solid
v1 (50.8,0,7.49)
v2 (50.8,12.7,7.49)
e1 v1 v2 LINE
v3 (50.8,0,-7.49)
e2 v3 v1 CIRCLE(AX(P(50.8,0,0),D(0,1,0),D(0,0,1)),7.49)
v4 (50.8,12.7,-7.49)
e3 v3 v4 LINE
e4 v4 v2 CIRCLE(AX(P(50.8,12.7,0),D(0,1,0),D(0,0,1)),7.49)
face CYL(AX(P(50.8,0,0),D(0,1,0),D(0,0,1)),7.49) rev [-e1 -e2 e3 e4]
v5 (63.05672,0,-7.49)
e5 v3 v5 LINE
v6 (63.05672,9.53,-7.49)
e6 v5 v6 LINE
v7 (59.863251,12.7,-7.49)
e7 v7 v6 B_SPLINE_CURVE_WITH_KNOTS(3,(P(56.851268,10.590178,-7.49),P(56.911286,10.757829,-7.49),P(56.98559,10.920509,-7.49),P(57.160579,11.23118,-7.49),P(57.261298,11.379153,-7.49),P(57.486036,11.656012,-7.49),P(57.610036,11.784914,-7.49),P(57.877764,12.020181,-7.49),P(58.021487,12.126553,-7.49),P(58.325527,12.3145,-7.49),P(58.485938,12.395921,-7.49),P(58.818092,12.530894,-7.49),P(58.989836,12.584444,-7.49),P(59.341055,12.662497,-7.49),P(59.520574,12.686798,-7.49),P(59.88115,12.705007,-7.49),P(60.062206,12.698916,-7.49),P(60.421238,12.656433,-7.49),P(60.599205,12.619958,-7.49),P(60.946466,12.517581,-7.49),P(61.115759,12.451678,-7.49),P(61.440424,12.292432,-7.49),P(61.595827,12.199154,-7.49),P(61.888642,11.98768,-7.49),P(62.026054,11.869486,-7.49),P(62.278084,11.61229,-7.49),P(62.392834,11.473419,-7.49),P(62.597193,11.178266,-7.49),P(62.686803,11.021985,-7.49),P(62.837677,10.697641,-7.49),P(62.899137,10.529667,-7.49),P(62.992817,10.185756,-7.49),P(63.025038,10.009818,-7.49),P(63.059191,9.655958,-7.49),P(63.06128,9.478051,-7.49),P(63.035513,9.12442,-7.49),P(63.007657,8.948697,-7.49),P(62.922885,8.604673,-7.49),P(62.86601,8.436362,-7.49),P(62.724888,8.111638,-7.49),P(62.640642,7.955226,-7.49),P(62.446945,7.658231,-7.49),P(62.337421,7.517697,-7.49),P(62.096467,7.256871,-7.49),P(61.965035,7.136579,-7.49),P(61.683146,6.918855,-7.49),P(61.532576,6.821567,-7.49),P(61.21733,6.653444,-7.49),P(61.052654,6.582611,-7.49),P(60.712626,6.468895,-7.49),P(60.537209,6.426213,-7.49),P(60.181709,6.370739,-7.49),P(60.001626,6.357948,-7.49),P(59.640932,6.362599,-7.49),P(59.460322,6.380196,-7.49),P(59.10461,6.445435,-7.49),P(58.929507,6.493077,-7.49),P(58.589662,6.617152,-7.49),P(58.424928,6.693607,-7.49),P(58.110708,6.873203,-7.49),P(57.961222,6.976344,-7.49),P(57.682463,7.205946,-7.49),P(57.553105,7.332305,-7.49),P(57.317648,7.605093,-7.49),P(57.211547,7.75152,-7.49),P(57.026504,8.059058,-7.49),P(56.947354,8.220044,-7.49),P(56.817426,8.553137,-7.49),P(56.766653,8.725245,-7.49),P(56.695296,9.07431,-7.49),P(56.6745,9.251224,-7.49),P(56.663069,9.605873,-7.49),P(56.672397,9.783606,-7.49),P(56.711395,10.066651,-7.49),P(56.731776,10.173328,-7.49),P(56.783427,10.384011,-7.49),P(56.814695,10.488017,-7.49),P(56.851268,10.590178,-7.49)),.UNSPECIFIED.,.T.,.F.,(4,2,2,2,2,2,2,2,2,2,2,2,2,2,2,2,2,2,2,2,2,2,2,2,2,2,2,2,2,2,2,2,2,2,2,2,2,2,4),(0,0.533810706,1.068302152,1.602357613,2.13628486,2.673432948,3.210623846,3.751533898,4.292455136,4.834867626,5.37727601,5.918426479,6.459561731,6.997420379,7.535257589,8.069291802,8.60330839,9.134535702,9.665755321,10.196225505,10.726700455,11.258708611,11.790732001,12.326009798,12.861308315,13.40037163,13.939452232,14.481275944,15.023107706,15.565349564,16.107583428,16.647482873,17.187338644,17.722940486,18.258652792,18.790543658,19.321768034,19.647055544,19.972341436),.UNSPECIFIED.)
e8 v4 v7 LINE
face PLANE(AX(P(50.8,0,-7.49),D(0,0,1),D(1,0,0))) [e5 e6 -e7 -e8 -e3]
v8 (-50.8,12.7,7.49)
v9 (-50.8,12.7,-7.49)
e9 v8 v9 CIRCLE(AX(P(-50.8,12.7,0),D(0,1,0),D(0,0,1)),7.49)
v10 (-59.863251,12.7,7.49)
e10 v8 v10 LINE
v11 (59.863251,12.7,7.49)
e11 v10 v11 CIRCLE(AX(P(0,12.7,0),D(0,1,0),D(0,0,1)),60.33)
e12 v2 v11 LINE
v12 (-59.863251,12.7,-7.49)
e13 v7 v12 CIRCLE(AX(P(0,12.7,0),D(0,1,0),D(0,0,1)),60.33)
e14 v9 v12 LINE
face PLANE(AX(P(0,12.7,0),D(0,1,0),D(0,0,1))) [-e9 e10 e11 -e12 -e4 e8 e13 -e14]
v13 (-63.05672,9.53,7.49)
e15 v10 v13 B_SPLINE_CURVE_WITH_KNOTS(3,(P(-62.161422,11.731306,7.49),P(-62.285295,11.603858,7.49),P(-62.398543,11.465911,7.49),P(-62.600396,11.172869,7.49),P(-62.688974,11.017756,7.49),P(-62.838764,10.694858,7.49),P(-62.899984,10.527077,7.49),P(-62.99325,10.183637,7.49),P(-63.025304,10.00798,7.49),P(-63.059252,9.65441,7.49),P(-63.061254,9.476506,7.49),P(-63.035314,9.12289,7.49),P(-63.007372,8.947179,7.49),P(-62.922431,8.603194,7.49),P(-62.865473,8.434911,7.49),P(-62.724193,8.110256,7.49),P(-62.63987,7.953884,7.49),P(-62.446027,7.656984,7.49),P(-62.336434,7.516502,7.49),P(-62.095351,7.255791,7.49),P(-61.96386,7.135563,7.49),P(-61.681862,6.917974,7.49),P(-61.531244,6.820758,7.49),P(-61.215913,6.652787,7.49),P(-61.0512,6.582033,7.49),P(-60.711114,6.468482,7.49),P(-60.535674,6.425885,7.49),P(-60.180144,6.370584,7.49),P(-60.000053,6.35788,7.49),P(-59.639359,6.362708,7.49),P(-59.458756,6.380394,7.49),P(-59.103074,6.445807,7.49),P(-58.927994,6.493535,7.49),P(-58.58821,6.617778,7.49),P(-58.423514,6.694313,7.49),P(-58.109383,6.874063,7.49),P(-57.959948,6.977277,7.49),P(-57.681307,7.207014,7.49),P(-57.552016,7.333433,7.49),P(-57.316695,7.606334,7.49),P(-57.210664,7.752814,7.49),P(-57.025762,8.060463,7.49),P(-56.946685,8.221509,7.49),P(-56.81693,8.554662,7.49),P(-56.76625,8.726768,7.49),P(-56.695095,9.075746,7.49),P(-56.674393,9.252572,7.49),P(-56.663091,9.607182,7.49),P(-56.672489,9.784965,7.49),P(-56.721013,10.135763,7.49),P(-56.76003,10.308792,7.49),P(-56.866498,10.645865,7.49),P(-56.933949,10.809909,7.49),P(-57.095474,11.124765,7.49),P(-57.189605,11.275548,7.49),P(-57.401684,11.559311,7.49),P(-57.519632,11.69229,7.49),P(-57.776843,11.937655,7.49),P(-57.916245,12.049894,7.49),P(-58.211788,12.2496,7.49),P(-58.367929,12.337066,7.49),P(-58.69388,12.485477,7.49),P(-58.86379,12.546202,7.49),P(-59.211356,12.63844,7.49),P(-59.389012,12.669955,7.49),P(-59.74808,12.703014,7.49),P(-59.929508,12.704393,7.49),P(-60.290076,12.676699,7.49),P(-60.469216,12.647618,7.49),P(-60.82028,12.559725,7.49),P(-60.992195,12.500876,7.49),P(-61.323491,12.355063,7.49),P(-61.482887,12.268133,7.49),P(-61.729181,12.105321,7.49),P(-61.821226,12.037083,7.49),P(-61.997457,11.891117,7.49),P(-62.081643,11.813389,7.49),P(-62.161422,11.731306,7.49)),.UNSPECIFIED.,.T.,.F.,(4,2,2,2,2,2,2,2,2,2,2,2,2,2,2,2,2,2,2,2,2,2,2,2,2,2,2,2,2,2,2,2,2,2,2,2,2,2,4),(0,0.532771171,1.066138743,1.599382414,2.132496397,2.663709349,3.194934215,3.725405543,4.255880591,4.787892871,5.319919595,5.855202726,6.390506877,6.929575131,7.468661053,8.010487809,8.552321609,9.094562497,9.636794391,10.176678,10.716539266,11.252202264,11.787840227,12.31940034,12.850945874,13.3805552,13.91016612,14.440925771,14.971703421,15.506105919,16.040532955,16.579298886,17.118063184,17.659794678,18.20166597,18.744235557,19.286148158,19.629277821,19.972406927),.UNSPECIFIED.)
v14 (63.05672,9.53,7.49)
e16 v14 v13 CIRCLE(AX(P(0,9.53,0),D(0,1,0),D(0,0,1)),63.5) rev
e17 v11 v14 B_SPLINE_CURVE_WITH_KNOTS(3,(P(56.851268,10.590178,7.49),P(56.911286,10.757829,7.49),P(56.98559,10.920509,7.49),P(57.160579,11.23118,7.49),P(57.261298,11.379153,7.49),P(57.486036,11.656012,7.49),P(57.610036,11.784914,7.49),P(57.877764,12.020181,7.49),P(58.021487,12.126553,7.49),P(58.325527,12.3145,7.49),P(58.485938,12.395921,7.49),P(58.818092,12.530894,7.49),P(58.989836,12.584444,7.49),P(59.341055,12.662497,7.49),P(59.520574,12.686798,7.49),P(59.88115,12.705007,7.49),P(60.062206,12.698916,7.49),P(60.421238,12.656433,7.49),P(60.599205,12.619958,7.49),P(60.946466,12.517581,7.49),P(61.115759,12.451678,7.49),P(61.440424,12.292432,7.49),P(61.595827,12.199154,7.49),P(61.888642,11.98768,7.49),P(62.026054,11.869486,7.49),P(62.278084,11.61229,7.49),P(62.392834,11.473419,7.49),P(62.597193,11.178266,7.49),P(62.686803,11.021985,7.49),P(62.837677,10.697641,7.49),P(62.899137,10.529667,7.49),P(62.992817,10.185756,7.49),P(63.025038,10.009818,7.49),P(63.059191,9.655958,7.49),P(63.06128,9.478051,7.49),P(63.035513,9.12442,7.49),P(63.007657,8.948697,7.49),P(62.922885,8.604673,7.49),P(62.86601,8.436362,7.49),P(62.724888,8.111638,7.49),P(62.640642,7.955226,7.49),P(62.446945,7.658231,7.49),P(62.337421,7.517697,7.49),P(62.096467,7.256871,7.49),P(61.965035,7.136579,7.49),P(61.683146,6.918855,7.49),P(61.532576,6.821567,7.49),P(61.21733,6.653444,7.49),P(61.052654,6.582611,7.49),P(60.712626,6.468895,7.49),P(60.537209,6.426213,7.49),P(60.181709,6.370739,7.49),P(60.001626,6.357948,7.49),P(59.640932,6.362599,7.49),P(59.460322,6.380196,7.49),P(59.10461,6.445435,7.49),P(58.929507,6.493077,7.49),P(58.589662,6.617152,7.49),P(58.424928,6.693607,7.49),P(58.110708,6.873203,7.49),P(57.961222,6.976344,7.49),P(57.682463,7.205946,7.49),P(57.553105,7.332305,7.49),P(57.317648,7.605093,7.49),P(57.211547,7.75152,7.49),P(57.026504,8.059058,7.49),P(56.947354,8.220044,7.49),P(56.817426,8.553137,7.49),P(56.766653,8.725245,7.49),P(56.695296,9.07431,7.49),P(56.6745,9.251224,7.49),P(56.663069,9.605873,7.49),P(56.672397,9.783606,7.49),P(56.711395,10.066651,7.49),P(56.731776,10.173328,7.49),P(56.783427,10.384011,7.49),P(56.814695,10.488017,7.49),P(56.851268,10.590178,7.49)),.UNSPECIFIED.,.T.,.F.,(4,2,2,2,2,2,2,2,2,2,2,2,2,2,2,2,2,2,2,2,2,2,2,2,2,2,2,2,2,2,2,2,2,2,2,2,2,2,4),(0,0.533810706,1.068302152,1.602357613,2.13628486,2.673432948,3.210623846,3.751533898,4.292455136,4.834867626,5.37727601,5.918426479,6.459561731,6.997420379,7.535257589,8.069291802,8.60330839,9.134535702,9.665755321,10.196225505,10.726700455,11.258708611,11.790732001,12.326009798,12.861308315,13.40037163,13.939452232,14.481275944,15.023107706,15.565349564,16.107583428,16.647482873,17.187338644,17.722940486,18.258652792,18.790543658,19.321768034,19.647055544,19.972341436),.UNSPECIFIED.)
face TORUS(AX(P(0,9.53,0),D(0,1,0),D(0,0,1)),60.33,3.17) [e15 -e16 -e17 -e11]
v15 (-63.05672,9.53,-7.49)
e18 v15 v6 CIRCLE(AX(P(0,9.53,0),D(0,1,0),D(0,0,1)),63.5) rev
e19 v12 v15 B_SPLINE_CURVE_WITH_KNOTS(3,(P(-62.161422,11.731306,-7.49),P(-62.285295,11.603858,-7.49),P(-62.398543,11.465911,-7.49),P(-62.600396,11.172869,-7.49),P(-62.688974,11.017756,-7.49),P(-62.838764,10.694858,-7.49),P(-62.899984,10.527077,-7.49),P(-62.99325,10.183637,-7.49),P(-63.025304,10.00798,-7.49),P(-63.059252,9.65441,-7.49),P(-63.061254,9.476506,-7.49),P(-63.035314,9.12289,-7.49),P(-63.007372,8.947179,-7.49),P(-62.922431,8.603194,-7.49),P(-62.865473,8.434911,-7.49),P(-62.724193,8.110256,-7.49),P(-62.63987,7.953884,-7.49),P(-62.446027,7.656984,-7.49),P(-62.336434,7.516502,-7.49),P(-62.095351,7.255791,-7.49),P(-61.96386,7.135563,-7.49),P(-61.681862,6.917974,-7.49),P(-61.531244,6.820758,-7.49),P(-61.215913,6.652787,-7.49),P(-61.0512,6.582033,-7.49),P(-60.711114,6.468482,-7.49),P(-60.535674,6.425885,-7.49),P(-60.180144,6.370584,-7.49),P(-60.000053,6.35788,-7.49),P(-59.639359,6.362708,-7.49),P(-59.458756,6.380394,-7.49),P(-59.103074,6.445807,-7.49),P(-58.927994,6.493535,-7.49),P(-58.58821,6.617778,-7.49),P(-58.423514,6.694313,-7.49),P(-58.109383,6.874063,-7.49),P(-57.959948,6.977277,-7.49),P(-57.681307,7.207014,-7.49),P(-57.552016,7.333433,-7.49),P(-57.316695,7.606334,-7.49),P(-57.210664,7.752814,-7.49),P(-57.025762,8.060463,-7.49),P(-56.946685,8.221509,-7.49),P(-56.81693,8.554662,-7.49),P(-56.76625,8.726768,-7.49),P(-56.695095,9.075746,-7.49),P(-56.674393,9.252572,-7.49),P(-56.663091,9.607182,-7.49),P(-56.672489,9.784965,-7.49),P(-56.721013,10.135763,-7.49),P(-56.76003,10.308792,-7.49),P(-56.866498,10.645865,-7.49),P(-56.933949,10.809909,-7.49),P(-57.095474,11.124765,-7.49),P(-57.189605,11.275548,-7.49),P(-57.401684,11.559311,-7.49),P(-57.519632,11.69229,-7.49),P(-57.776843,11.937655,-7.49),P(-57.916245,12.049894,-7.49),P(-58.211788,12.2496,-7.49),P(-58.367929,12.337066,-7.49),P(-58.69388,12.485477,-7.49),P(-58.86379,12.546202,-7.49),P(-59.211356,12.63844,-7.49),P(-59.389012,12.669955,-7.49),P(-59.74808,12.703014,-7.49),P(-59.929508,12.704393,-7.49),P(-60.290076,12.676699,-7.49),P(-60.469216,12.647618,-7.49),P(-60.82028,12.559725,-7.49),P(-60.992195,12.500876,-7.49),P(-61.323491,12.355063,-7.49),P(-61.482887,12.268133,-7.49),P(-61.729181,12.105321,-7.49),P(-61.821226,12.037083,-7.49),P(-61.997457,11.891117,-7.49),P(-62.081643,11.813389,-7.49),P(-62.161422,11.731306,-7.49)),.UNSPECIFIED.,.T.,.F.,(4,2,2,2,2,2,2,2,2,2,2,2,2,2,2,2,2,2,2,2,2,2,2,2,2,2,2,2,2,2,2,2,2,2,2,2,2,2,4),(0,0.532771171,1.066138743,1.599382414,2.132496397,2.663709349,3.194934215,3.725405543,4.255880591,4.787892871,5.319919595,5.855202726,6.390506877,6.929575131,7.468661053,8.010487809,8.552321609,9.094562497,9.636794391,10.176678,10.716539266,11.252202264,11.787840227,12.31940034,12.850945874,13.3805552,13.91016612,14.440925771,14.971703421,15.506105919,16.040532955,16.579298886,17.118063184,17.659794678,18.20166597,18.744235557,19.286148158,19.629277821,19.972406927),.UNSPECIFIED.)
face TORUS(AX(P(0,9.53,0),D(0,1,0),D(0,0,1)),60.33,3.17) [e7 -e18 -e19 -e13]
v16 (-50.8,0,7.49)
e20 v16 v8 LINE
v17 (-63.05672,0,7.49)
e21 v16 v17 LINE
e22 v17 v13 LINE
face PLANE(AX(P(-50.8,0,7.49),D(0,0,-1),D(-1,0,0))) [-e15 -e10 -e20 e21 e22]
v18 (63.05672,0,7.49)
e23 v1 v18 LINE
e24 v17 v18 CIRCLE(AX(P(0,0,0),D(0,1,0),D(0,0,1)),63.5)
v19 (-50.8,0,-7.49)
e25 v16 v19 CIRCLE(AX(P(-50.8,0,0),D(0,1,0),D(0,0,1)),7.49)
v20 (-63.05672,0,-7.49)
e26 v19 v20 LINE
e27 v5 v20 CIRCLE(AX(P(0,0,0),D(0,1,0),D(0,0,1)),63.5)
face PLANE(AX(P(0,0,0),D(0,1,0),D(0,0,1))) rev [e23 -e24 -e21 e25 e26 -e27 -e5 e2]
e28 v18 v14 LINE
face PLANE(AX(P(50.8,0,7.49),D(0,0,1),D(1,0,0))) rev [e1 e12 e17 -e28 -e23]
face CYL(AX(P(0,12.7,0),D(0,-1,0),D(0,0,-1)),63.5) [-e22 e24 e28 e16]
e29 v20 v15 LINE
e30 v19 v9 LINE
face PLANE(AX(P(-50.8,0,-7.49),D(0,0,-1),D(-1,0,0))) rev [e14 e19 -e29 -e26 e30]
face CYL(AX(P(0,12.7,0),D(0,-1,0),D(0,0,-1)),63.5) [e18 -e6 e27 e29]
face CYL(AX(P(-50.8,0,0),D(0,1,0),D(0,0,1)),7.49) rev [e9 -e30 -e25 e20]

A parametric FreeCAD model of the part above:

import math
import FreeCAD as App
import Part
import Sketcher
from FreeCAD import Vector
Q = App.Units.Quantity


def edges_at(feature, points):
    """Names of the edges that pass closest to the given points."""
    edges = feature.Shape.Edges
    near = lambda p: min(range(len(edges)), key=lambda i: edges[i].distToShape(Part.Vertex(*p))[0])
    return sorted({f"Edge{near(p) + 1}" for p in points})

doc = App.newDocument("Part")
params = doc.addObject("Spreadsheet::Sheet", "Params")
for row, (alias, value) in enumerate([
    ("sketch1_diameter", "5 in"),
    ("pad1_length", "0.5 in"),
    ("fillet_radius", "3.17 mm"),
    ("sketch2_radius", "2.5 in"),
], start=1):
    params.set(f"A{row}", alias)
    params.set(f"B{row}", "=" + value)
    params.setAlias(f"B{row}", alias)

body = doc.addObject("PartDesign::Body", "Body")

sketch1 = body.newObject("Sketcher::SketchObject", "Sketch")
sketch1.AttachmentSupport = (doc.getObject("XZ_Plane"), [""])
sketch1.MapMode = "FlatFace"
sketch1.addGeometry(Part.Circle(Vector(0, 0, 0), Vector(0, 0, 1), 64), False)
sketch1.addConstraint([
    Sketcher.Constraint("Coincident", 0, 3, -1, 1),
    Sketcher.Constraint("Diameter", 0, Q("5 in")),
])
sketch1.setExpression("Constraints[1]", "Params.sketch1_diameter")
pad1 = body.newObject("PartDesign::Pad", "Pad")
pad1.Profile = sketch1
pad1.setExpression("Length", "Params.pad1_length")
pad1.Reversed = True
doc.recompute()

fillet = body.newObject("PartDesign::Fillet", "Fillet")
fillet.Base = (pad1, edges_at(pad1, [(-63.5, 12.7, 0)]))
fillet.setExpression("Radius", "Params.fillet_radius")

sketch2 = body.newObject("Sketcher::SketchObject", "Sketch001")
sketch2.AttachmentSupport = (doc.getObject("XZ_Plane"), [""])
sketch2.MapMode = "FlatFace"
sketch2.AttachmentOffset = App.Placement(Vector(0, 0, -0.5 * 25.4), App.Rotation())
sketch2.addGeometry([
    Part.LineSegment(Vector(-51, -7, 0), Vector(-63, -7, 0)),
    Part.ArcOfCircle(Part.Circle(Vector(0, 0, 0), Vector(0, 0, 1), 63), math.radians(173.23), math.radians(186.77)),
    Part.LineSegment(Vector(-63, 7, 0), Vector(-51, 7, 0)),
    Part.ArcOfCircle(Part.Circle(Vector(-51, 0, 0), Vector(0, 0, 1), 7), math.radians(-90), math.radians(90)),
    Part.LineSegment(Vector(51, 7, 0), Vector(63, 7, 0)),
    Part.ArcOfCircle(Part.Circle(Vector(0, 0, 0), Vector(0, 0, 1), 63), math.radians(-6.77), math.radians(6.77)),
    Part.LineSegment(Vector(63, -7, 0), Vector(51, -7, 0)),
    Part.ArcOfCircle(Part.Circle(Vector(51, 0, 0), Vector(0, 0, 1), 7), math.radians(90), math.radians(270)),
], False)
sketch2.addConstraint([
    Sketcher.Constraint("Coincident", 0, 2, 1, 2),
    Sketcher.Constraint("Coincident", 1, 1, 2, 1),
    Sketcher.Constraint("Tangent", 2, 2, 3, 2),
    Sketcher.Constraint("Tangent", 3, 1, 0, 1),
    Sketcher.Constraint("Coincident", 4, 2, 5, 2),
    Sketcher.Constraint("Coincident", 5, 1, 6, 1),
    Sketcher.Constraint("Tangent", 6, 2, 7, 2),
    Sketcher.Constraint("Tangent", 7, 1, 4, 1),
    Sketcher.Constraint("Horizontal", 0),
    Sketcher.Constraint("Horizontal", 2),
    Sketcher.Constraint("Horizontal", 4),
    Sketcher.Constraint("Horizontal", 6),
    Sketcher.Constraint("Coincident", 1, 3, -1, 1),
    Sketcher.Constraint("Coincident", 5, 3, -1, 1),
    Sketcher.Constraint("Equal", 1, 5),
    Sketcher.Constraint("Equal", 3, 7),
    Sketcher.Constraint("Symmetric", 3, 3, 7, 3, -1, 1),
    Sketcher.Constraint("PointOnObject", 3, 3, -1),
    Sketcher.Constraint("Radius", 1, Q("2.5 in")),
    Sketcher.Constraint("DistanceX", 3, 3, -1, 1, Q("2 in")),
    Sketcher.Constraint("Radius", 3, Q("7.49 mm")),
])
sketch2.setExpression("Constraints[18]", "Params.sketch2_radius")
pocket1 = body.newObject("PartDesign::Pocket", "Pocket")
pocket1.Profile = sketch2
pocket1.Type = "ThroughAll"
pocket1.Reversed = True

doc.recompute()
